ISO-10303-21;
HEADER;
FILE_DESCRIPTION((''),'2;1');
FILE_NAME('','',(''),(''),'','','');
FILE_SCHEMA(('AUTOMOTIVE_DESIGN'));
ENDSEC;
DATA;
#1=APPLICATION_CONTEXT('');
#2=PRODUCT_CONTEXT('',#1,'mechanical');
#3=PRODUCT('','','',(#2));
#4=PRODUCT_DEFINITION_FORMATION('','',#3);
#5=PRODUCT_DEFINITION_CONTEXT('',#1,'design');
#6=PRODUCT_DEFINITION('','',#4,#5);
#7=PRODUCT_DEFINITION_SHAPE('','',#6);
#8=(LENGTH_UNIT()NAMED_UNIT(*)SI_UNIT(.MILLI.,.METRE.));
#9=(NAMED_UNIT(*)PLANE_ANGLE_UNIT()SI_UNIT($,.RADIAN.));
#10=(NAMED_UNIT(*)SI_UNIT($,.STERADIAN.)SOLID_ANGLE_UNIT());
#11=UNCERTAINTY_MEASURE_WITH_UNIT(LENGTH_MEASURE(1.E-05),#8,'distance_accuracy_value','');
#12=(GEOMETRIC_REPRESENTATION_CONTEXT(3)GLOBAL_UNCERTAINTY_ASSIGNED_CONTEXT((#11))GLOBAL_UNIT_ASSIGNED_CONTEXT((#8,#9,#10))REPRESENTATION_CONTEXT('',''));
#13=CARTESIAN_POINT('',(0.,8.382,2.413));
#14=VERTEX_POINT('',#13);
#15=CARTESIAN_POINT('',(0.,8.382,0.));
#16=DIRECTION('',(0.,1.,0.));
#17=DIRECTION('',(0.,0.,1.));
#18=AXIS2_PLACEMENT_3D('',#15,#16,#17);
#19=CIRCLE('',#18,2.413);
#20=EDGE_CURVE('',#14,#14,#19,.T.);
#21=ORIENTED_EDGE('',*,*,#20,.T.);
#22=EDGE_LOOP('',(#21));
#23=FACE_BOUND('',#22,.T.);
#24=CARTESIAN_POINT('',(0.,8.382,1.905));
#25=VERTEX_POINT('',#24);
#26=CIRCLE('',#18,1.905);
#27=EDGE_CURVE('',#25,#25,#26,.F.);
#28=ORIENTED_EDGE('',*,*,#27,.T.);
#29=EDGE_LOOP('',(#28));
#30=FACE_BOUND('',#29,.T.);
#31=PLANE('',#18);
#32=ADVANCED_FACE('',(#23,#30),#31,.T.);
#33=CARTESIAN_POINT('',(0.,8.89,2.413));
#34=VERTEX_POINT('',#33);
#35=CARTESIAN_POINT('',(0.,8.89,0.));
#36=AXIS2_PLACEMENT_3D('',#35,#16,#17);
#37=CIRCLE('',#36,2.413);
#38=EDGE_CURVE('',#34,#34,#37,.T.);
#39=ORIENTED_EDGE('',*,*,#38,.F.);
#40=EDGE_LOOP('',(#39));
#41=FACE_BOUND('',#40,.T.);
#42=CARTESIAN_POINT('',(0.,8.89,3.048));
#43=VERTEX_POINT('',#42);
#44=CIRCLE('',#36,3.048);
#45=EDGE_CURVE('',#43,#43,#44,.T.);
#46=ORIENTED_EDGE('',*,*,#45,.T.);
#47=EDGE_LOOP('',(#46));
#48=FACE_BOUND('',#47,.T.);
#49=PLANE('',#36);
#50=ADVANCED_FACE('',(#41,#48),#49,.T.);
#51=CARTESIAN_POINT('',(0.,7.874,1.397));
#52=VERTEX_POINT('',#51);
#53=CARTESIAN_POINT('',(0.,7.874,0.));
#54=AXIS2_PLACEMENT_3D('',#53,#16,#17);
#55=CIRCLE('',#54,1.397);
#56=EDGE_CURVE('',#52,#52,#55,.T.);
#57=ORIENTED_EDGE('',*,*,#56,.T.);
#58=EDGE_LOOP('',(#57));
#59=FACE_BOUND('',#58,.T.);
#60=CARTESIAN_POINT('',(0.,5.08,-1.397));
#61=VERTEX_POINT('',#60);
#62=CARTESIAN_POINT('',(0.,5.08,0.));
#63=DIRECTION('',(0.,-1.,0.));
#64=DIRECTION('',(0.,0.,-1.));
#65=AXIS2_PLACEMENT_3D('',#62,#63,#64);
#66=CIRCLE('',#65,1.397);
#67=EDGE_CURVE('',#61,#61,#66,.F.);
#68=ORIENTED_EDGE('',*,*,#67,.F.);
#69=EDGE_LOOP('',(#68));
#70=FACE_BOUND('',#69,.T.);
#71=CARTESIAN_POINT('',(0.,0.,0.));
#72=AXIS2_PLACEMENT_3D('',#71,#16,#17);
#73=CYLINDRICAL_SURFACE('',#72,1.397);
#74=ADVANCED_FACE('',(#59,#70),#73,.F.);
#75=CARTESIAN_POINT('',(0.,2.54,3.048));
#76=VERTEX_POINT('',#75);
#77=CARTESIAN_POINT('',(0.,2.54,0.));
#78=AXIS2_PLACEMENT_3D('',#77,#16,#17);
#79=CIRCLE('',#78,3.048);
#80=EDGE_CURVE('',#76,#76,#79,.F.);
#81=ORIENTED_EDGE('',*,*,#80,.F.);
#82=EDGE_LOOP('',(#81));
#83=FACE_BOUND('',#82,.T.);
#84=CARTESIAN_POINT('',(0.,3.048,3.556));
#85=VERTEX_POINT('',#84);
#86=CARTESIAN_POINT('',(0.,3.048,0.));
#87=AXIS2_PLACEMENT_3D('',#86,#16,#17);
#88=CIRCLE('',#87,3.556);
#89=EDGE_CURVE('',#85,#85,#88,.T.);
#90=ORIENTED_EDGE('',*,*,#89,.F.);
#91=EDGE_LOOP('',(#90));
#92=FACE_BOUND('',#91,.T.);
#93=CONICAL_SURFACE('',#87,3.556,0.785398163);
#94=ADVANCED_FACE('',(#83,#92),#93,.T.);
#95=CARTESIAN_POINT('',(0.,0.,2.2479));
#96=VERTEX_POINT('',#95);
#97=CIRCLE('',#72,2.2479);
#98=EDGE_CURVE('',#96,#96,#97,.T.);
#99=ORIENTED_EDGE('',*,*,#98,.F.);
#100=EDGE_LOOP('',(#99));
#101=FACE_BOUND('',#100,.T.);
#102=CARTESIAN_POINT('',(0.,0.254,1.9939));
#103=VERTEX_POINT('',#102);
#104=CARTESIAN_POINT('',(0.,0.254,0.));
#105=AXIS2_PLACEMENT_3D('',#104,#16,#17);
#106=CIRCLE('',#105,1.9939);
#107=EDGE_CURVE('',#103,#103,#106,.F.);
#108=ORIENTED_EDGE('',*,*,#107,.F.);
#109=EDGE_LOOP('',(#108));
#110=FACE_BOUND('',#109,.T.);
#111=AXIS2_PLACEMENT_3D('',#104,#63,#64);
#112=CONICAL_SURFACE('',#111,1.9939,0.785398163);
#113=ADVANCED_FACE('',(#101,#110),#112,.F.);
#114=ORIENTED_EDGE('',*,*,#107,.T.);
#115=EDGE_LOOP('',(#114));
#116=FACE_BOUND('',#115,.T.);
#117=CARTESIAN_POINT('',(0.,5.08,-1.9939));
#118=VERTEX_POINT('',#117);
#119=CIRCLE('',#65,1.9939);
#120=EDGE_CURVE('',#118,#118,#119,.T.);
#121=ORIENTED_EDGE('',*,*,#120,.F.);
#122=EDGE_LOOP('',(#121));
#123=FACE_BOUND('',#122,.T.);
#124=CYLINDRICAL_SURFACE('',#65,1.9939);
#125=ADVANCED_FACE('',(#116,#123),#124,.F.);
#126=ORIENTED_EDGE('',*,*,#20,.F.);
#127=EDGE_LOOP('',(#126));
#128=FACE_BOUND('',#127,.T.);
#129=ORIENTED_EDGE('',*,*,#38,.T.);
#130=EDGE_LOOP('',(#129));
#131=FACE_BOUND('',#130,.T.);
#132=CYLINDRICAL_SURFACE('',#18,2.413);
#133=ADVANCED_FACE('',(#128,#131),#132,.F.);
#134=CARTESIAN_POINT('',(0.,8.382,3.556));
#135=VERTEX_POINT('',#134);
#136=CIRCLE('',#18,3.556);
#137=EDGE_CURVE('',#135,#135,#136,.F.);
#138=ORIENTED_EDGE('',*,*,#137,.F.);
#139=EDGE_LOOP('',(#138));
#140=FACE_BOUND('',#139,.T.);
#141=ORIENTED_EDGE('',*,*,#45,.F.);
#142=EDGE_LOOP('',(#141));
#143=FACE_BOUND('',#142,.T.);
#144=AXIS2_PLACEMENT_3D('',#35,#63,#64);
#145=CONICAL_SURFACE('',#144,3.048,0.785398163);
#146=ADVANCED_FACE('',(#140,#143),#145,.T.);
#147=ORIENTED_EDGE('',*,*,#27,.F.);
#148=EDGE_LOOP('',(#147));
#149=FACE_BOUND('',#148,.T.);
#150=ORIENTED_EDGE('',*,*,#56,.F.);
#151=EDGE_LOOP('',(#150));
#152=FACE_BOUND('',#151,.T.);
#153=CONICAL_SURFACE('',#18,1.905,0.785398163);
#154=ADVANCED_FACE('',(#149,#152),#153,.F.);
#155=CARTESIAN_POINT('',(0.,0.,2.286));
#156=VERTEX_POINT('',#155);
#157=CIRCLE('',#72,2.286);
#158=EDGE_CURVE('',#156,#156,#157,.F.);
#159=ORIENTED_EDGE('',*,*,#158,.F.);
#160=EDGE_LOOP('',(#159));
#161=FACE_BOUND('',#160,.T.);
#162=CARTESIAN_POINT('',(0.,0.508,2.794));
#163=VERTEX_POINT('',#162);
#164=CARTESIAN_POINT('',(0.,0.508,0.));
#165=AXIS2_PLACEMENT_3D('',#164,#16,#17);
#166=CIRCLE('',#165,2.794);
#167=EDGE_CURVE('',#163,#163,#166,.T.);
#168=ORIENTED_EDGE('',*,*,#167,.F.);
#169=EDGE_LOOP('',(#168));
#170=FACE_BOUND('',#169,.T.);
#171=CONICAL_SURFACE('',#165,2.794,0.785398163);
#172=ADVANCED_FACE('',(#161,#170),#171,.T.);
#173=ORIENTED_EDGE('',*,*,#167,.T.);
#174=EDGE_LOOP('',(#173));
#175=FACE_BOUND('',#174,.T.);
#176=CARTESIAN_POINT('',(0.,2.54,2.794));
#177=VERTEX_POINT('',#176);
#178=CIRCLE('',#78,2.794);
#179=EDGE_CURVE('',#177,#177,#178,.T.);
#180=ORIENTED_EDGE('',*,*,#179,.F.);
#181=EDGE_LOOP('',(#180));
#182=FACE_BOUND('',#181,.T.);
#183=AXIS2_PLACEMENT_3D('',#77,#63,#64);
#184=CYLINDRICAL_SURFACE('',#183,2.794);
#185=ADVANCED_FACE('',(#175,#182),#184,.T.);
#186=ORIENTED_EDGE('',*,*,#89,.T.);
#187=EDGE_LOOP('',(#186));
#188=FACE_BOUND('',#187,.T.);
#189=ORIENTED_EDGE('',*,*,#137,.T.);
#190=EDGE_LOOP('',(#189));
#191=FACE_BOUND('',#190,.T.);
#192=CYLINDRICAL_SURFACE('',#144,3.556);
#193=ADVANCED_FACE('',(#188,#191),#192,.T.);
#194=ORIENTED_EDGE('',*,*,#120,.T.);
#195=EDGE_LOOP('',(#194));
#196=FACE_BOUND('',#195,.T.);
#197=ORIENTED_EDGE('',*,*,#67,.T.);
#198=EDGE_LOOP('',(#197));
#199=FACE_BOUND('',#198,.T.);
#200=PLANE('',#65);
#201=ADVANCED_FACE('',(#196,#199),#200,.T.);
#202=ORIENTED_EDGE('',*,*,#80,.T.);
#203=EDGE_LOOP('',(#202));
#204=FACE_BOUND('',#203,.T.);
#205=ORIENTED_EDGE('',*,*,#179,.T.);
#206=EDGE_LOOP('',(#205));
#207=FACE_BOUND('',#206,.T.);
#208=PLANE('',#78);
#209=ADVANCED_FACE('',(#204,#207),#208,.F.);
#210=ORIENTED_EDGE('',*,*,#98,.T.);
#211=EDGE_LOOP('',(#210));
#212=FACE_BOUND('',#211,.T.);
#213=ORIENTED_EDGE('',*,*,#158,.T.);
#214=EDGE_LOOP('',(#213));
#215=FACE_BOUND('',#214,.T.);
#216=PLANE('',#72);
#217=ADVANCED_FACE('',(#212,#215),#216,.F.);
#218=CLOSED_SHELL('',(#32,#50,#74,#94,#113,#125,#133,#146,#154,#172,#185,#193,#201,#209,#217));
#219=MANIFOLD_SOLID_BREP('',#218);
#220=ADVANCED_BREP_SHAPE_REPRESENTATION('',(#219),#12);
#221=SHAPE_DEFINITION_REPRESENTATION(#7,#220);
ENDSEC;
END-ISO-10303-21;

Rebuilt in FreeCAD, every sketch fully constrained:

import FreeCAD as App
import Part
import Sketcher
from FreeCAD import Vector
Q = App.Units.Quantity


def edges_at(feature, points):
    """Names of the edges that pass closest to the given points."""
    edges = feature.Shape.Edges
    near = lambda p: min(range(len(edges)), key=lambda i: edges[i].distToShape(Part.Vertex(*p))[0])
    return sorted({f"Edge{near(p) + 1}" for p in points})

doc = App.newDocument("Part")
body = doc.addObject("PartDesign::Body", "Body")

# Sketch on XZ plane
sketch1 = doc.addObject("Sketcher::SketchObject", "Sketch")
body.addObject(sketch1)
sketch1.AttachmentSupport = (doc.XZ_Plane, [""])
sketch1.MapMode = "FlatFace"
sketch1.addGeometry(Part.Circle(Vector(0, 0, 0), Vector(0, 0, 1), 2.8), False)
sketch1.addConstraint(Sketcher.Constraint("Coincident", 0, 3, -1, 1))
sketch1.addConstraint(Sketcher.Constraint("Diameter", 0, Q("0.22 in")))
pad1 = doc.addObject("PartDesign::Pad", "Pad")
body.addObject(pad1)
pad1.Profile = sketch1
pad1.Length = Q("0.1 in")
pad1.Reversed = True

# Sketch on XZ plane
sketch2 = doc.addObject("Sketcher::SketchObject", "Sketch001")
body.addObject(sketch2)
sketch2.AttachmentSupport = (doc.XZ_Plane, [""])
sketch2.MapMode = "FlatFace"
sketch2.AttachmentOffset = App.Placement(Vector(0, 0, -0.1 * 25.4), App.Rotation())
sketch2.addGeometry(Part.Circle(Vector(0, 0, 0), Vector(0, 0, 1), 3.6), False)
sketch2.addConstraint(Sketcher.Constraint("Coincident", 0, 3, -1, 1))
sketch2.addConstraint(Sketcher.Constraint("Diameter", 0, Q("0.28 in")))
pad2 = doc.addObject("PartDesign::Pad", "Pad001")
body.addObject(pad2)
pad2.Profile = sketch2
pad2.Length = Q("0.25 in")
pad2.Reversed = True

# Sketch on XZ plane
sketch3 = doc.addObject("Sketcher::SketchObject", "Sketch002")
body.addObject(sketch3)
sketch3.AttachmentSupport = (doc.XZ_Plane, [""])
sketch3.MapMode = "FlatFace"
sketch3.AttachmentOffset = App.Placement(Vector(0, 0, -0.35 * 25.4), App.Rotation())
sketch3.addGeometry(Part.Circle(Vector(0, 0, 0), Vector(0, 0, 1), 1.4), False)
sketch3.addConstraint(Sketcher.Constraint("Coincident", 0, 3, -1, 1))
sketch3.addConstraint(Sketcher.Constraint("Diameter", 0, Q("0.11 in")))
pocket1 = doc.addObject("PartDesign::Pocket", "Pocket")
body.addObject(pocket1)
pocket1.Profile = sketch3
pocket1.Type = "ThroughAll"
pocket1.Reversed = True

# Sketch on XZ plane
sketch4 = doc.addObject("Sketcher::SketchObject", "Sketch003")
body.addObject(sketch4)
sketch4.AttachmentSupport = (doc.XZ_Plane, [""])
sketch4.MapMode = "FlatFace"
sketch4.AttachmentOffset = App.Placement(Vector(0, 0, -0.35 * 25.4), App.Rotation())
sketch4.addGeometry(Part.Circle(Vector(0, 0, 0), Vector(0, 0, 1), 2.4), False)
sketch4.addConstraint(Sketcher.Constraint("Coincident", 0, 3, -1, 1))
sketch4.addConstraint(Sketcher.Constraint("Diameter", 0, Q("0.19 in")))
pocket2 = doc.addObject("PartDesign::Pocket", "Pocket001")
body.addObject(pocket2)
pocket2.Profile = sketch4
pocket2.Length = Q("0.02 in")
pocket2.Reversed = True

# Sketch on XZ plane
sketch5 = doc.addObject("Sketcher::SketchObject", "Sketch004")
body.addObject(sketch5)
sketch5.AttachmentSupport = (doc.XZ_Plane, [""])
sketch5.MapMode = "FlatFace"
sketch5.addGeometry(Part.Circle(Vector(0, 0, 0), Vector(0, 0, 1), 2), False)
sketch5.addConstraint(Sketcher.Constraint("Coincident", 0, 3, -1, 1))
sketch5.addConstraint(Sketcher.Constraint("Diameter", 0, Q("0.157 in")))
pocket3 = doc.addObject("PartDesign::Pocket", "Pocket002")
body.addObject(pocket3)
pocket3.Profile = sketch5
pocket3.Length = Q("0.2 in")
doc.recompute()

chamfer = doc.addObject("PartDesign::Chamfer", "Chamfer")
body.addObject(chamfer)
chamfer.Base = (pocket3, edges_at(pocket3, [(0, 0, -2.794), (0, 2.54, -3.556), (0, 8.89, -3.556)]))
chamfer.Size = Q("0.02 in")
doc.recompute()

chamfer2 = doc.addObject("PartDesign::Chamfer", "Chamfer001")
body.addObject(chamfer2)
chamfer2.Base = (chamfer, edges_at(chamfer, [(0, 0, 1.994)]))
chamfer2.Size = Q("0.01 in")
doc.recompute()

chamfer3 = doc.addObject("PartDesign::Chamfer", "Chamfer002")
body.addObject(chamfer3)
chamfer3.Base = (chamfer2, edges_at(chamfer2, [(0, 8.382, -1.397)]))
chamfer3.Size = Q("0.02 in")

doc.recompute()
